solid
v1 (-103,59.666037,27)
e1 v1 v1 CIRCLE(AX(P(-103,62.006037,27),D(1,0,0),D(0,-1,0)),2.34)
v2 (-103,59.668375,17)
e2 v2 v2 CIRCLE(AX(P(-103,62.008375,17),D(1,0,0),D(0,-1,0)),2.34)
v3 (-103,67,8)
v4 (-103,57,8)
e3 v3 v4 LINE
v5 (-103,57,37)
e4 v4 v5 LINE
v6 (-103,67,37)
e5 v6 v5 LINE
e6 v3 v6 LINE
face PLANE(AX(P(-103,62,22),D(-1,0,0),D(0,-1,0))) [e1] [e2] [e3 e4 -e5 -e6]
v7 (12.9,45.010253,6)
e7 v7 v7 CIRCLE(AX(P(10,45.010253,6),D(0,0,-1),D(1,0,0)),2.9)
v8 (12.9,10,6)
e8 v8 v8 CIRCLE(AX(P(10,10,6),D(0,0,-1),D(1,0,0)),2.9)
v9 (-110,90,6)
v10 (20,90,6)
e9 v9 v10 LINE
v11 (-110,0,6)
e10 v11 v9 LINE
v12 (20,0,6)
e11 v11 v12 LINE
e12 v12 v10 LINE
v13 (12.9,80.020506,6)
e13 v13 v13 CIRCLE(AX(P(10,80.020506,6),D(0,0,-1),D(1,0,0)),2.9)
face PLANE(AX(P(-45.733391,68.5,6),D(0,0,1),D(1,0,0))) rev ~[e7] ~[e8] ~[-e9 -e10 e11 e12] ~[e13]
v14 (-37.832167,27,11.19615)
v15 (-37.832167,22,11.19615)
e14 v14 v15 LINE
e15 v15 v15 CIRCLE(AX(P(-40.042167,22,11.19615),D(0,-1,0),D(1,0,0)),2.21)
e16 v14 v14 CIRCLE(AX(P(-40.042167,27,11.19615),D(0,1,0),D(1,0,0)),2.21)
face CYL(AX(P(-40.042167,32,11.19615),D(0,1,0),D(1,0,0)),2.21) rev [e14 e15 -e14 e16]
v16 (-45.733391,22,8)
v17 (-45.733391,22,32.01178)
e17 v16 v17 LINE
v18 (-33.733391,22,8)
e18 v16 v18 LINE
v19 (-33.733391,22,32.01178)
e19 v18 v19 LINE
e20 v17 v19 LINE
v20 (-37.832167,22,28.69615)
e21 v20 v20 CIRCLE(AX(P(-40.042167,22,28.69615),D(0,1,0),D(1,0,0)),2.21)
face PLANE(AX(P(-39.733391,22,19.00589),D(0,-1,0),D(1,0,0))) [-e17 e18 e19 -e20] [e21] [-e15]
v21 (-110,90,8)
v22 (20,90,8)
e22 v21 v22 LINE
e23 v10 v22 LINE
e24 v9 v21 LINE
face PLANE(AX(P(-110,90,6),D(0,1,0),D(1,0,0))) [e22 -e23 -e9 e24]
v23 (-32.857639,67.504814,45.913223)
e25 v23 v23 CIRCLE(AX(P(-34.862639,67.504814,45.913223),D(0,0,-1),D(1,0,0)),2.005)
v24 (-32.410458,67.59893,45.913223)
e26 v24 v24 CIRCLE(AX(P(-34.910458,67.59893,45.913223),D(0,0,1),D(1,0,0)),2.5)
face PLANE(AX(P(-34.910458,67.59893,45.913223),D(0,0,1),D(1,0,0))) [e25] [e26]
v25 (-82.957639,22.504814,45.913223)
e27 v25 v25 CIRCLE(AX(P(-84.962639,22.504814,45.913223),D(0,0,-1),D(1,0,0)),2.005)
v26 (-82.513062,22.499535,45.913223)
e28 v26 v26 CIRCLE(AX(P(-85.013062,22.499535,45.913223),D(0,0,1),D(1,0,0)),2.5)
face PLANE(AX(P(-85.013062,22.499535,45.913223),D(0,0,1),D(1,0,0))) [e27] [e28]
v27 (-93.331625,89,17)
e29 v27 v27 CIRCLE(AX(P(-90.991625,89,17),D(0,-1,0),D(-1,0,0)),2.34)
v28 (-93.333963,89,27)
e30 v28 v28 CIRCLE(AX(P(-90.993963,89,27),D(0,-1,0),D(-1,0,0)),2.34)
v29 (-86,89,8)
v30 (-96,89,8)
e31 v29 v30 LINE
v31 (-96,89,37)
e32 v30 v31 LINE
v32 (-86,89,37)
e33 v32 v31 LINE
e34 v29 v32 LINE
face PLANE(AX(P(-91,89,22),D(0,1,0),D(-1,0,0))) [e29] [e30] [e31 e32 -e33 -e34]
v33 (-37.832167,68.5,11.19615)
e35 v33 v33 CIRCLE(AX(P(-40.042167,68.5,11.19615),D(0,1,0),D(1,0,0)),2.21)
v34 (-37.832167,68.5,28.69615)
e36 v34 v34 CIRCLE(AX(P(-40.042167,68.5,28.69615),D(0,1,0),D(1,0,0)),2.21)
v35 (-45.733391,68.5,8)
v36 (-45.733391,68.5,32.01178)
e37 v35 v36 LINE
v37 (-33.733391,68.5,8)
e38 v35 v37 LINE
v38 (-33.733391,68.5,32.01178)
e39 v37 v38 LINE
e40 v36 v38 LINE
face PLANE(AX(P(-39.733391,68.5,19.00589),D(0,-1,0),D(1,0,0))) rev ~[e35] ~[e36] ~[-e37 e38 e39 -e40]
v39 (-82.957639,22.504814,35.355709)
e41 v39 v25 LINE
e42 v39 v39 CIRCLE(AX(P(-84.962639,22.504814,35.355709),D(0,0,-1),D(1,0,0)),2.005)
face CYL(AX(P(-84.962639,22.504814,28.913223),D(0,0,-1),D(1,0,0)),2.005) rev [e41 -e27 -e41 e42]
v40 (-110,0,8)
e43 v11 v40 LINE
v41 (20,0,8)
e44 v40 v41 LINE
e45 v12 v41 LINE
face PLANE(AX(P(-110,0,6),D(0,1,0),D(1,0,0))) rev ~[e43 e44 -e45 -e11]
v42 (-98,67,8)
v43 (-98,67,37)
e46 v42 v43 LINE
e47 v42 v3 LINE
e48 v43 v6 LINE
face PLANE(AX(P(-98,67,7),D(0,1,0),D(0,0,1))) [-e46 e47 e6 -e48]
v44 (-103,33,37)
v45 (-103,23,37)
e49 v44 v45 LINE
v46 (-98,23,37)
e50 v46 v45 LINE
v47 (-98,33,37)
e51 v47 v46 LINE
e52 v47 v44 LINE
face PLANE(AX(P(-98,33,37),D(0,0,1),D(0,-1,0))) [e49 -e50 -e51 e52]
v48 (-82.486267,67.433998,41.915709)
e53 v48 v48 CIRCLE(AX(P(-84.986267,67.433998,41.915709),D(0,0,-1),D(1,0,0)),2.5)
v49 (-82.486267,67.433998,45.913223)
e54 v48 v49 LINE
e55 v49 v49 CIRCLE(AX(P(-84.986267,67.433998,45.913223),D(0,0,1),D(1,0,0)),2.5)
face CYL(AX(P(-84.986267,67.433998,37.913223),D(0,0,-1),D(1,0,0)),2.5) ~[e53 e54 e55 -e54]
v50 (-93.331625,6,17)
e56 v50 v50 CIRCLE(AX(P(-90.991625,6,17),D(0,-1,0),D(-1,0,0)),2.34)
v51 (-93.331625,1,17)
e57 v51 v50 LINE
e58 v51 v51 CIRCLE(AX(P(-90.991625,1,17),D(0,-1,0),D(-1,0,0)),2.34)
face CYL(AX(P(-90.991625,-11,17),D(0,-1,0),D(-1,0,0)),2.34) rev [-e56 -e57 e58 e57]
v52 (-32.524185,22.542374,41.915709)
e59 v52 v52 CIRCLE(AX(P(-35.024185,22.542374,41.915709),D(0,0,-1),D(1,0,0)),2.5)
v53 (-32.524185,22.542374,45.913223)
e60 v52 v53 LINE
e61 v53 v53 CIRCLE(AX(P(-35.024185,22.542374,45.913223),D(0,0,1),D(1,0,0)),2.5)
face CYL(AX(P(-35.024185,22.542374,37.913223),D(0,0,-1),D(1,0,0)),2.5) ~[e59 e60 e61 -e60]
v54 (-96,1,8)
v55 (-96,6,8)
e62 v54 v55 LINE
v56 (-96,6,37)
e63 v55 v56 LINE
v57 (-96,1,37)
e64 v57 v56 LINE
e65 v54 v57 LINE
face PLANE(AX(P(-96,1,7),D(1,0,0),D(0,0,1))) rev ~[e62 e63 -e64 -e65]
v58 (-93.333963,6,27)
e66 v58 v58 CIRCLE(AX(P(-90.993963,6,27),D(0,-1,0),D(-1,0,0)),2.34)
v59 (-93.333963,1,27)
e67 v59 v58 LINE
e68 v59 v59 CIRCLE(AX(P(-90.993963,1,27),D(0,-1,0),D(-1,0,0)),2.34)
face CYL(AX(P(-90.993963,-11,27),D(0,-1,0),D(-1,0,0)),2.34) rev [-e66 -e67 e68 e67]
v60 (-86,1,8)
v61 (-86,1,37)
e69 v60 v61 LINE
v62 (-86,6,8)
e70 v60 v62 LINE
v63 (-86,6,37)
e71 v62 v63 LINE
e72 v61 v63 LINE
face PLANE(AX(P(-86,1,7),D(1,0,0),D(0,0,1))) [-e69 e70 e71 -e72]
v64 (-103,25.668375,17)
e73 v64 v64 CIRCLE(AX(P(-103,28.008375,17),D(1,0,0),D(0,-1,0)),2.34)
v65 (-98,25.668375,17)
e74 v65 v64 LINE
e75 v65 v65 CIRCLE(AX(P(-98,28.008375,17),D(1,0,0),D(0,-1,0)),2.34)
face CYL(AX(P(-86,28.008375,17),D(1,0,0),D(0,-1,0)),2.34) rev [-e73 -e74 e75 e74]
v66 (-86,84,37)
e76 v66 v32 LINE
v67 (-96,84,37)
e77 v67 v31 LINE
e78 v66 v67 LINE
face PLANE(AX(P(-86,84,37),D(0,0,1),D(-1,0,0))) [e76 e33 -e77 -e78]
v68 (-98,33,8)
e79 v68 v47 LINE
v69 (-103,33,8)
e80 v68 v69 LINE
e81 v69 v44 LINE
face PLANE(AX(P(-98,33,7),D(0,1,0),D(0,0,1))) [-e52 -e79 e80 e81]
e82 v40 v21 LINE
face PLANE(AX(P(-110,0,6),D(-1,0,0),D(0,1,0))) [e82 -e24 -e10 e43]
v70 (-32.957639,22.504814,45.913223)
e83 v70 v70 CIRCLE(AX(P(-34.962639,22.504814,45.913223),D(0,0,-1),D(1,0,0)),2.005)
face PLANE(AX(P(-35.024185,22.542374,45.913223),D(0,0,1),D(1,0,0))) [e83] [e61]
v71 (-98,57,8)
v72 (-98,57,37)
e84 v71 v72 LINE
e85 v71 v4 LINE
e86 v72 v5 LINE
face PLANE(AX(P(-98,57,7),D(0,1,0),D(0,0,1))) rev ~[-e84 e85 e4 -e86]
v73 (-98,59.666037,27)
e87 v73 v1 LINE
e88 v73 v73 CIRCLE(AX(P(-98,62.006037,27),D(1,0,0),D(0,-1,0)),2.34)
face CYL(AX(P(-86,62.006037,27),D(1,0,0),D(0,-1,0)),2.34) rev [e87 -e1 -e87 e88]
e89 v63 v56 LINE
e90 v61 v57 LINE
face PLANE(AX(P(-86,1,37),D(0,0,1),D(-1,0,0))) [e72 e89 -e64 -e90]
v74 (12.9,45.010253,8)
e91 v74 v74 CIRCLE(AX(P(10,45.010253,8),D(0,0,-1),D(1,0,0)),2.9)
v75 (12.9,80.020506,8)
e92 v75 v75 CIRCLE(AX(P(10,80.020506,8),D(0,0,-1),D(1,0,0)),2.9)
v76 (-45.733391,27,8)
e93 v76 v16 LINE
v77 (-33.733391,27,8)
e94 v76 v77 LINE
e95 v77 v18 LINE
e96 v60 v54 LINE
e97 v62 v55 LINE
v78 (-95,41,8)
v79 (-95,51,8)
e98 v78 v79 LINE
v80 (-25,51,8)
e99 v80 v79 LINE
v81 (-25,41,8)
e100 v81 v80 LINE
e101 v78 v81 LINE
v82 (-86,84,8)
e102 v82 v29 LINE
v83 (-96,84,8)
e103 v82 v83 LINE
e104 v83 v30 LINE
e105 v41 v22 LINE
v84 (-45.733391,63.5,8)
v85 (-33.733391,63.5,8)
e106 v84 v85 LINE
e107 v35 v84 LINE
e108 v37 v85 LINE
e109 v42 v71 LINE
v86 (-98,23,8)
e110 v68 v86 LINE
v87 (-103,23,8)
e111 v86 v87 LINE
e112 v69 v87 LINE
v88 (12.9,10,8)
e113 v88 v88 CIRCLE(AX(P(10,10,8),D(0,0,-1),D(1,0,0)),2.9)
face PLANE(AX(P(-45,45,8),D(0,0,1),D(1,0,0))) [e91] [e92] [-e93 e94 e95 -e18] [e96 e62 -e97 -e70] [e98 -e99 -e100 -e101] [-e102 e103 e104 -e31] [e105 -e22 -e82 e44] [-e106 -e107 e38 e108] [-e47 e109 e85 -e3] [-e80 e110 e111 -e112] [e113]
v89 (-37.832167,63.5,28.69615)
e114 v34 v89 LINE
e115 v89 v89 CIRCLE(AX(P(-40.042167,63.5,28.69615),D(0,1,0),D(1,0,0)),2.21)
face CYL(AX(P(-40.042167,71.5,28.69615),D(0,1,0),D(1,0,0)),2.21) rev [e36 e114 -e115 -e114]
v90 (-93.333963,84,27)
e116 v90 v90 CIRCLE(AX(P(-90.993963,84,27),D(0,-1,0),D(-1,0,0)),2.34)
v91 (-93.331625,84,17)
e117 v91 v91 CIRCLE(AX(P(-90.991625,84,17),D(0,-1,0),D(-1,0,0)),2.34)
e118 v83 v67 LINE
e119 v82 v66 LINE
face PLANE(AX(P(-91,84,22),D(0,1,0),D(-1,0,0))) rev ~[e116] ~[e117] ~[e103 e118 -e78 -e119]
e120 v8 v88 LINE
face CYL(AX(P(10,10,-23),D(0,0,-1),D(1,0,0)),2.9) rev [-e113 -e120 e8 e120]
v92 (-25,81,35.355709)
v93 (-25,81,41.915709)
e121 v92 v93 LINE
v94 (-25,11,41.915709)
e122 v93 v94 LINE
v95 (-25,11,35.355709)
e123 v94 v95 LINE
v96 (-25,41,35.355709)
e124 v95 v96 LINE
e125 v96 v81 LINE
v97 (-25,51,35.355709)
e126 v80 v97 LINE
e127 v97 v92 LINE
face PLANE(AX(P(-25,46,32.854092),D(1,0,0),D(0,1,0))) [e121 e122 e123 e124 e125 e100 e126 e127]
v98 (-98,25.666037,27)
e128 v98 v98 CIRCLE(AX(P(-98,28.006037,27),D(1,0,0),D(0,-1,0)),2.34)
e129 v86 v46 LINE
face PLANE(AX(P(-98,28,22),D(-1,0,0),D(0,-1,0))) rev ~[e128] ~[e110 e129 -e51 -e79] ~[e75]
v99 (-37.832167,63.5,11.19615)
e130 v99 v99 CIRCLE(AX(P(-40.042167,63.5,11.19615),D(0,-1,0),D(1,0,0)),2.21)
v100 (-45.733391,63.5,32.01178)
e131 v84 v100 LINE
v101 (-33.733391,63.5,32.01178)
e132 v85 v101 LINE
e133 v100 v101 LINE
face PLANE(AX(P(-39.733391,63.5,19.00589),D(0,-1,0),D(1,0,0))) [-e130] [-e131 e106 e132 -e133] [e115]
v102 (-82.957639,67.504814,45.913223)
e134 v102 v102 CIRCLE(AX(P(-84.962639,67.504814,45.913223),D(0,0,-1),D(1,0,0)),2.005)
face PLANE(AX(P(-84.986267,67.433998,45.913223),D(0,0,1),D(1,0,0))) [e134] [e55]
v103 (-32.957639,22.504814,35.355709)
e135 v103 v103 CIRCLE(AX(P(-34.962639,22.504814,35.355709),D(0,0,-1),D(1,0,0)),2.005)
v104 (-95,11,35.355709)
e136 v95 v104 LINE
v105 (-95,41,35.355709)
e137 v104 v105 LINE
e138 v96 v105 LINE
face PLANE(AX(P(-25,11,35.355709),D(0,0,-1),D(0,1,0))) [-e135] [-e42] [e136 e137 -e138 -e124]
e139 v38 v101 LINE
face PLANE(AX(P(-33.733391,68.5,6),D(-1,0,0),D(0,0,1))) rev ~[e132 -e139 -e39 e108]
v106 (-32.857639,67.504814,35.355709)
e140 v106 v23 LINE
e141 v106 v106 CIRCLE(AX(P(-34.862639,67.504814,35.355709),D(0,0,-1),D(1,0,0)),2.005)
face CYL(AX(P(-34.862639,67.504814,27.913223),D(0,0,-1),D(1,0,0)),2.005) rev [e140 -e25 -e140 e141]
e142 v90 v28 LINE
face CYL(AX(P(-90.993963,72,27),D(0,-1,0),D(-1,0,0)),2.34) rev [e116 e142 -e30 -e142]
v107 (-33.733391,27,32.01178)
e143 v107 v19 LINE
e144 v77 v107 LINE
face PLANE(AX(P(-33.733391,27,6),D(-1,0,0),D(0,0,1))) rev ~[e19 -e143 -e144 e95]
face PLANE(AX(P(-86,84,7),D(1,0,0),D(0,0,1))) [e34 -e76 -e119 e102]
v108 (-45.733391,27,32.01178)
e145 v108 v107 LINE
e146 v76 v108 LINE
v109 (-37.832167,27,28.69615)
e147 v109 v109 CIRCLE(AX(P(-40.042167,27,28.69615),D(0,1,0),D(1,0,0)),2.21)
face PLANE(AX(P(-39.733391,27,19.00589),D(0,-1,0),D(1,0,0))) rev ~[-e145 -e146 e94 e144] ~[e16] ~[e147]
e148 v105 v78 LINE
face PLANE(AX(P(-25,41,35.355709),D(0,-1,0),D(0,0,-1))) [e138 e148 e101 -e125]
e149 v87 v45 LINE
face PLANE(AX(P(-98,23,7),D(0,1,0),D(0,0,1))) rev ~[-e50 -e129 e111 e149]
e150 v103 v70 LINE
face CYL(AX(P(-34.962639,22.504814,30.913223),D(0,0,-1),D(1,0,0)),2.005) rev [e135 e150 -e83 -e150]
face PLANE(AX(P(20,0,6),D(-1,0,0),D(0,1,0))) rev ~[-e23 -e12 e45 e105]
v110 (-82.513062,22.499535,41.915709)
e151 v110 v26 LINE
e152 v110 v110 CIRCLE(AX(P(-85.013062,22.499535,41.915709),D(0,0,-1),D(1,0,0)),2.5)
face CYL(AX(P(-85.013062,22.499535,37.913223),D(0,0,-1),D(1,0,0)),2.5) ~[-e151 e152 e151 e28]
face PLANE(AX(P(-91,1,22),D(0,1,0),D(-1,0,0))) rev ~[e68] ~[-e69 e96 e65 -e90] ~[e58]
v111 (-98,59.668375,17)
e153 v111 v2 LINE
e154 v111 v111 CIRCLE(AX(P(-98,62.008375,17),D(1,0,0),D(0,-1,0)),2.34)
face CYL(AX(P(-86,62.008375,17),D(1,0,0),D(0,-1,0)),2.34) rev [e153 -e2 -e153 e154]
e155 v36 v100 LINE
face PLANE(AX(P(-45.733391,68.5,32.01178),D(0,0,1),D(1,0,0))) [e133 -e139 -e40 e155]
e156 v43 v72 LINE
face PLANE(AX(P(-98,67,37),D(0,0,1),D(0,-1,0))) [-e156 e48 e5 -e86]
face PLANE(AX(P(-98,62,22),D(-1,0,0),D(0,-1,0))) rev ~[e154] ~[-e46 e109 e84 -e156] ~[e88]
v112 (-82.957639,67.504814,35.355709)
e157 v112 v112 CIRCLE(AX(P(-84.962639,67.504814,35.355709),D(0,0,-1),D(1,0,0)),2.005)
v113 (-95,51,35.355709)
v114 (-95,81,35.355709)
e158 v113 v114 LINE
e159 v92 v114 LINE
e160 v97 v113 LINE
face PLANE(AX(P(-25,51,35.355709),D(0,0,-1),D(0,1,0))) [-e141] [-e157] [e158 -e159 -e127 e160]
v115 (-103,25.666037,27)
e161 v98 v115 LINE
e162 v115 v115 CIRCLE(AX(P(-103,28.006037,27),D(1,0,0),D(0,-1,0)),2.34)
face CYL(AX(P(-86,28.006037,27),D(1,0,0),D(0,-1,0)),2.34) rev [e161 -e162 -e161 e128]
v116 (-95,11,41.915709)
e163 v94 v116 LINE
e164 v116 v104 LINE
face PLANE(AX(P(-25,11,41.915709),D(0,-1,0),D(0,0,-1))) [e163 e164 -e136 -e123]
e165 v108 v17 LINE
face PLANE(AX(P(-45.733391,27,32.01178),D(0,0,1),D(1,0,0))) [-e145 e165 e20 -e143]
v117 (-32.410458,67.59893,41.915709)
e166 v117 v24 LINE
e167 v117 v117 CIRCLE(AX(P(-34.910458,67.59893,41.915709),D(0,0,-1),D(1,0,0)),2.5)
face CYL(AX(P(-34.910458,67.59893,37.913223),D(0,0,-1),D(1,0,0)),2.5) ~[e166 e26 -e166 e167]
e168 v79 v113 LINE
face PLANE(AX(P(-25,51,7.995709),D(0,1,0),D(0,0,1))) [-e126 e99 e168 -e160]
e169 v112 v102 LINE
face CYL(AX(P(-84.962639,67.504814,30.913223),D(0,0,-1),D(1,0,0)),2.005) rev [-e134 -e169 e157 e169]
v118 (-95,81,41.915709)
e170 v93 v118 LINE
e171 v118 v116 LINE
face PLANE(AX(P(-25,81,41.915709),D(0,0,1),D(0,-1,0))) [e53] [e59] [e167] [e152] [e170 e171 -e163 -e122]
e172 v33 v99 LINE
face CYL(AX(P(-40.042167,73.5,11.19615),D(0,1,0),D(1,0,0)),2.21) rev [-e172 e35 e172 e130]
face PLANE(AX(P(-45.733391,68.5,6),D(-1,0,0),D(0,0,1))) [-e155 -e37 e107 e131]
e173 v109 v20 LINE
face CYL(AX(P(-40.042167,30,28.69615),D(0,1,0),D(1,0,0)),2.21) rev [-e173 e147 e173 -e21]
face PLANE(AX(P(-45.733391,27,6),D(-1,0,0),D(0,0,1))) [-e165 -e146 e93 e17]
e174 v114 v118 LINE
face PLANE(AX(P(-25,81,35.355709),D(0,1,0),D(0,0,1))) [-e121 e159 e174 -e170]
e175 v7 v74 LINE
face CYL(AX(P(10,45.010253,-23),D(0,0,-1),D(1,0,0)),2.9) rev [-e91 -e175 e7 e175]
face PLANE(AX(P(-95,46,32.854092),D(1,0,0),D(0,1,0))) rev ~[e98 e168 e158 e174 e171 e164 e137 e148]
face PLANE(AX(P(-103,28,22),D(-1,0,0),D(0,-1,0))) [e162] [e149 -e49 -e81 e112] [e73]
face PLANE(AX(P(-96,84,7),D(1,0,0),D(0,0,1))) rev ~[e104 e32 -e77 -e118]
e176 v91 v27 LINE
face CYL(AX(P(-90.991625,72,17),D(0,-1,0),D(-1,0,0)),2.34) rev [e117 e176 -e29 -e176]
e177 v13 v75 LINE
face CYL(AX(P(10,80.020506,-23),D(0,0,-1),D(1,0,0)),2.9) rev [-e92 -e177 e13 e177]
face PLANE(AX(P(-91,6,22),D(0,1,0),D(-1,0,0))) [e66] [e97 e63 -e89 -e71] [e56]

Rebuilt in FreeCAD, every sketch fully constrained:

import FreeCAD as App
import Part
import Sketcher

doc = App.newDocument("Part")
body = doc.addObject("PartDesign::Body", "Body")

# Sketch on XZ plane
sketch1 = doc.addObject("Sketcher::SketchObject", "Sketch")
body.addObject(sketch1)
sketch1.AttachmentSupport = (doc.XZ_Plane, [""])
sketch1.MapMode = "FlatFace"
sketch1.addGeometry(Part.Circle(App.Vector(-30.2, 20, 0), App.Vector(0, 0, 1), 2.2), False)
sketch1.addConstraint([
    Sketcher.Constraint("Diameter", 0, 4.42),
    Sketcher.Constraint("DistanceY", -1, 1, 0, 3, 20.01615),
    Sketcher.Constraint("DistanceX", 0, 3, -1, 1, 30.242167),
])
pad1 = doc.addObject("PartDesign::Pad", "Pad")
body.addObject(pad1)
pad1.Profile = sketch1
pad1.Length = 10
body2 = doc.addObject("PartDesign::Body", "Body001")
doc.recompute()

body.Placement = App.Placement(App.Vector(-9.8, 5, -14.82), App.Rotation(App.Vector(0, 0, 1), 0))
boolean = doc.addObject("PartDesign::Boolean", "Boolean")
body2.addObject(boolean)
boolean.Type = "Fuse"
boolean.addObjects([body])
body3 = doc.addObject("PartDesign::Body", "Body002")

# Sketch on XZ plane
sketch2 = doc.addObject("Sketcher::SketchObject", "Sketch001")
body3.addObject(sketch2)
sketch2.AttachmentSupport = (doc.getObject("XZ_Plane002"), [""])
sketch2.MapMode = "FlatFace"
sketch2.addGeometry(Part.Circle(App.Vector(-30.2, 20, 0), App.Vector(0, 0, 1), 2.2), False)
sketch2.addConstraint([
    Sketcher.Constraint("Diameter", 0, 4.42),
    Sketcher.Constraint("DistanceY", -1, 1, 0, 3, 20.01615),
    Sketcher.Constraint("DistanceX", 0, 3, -1, 1, 30.242167),
])
pad2 = doc.addObject("PartDesign::Pad", "Pad001")
body3.addObject(pad2)
pad2.Profile = sketch2
pad2.Length = 10
body4 = doc.addObject("PartDesign::Body", "Body003")
doc.recompute()

body3.Placement = App.Placement(App.Vector(-9.8, 3, 2.68), App.Rotation(App.Vector(0, 0, 1), 0))
boolean2 = doc.addObject("PartDesign::Boolean", "Boolean001")
body4.addObject(boolean2)
boolean2.Type = "Fuse"
boolean2.addObjects([body3])
body5 = doc.addObject("PartDesign::Body", "Body004")

# Sketch on XZ plane
sketch3 = doc.addObject("Sketcher::SketchObject", "Sketch002")
body5.addObject(sketch3)
sketch3.AttachmentSupport = (doc.getObject("XZ_Plane004"), [""])
sketch3.MapMode = "FlatFace"
sketch3.addGeometry([
    Part.LineSegment(App.Vector(-46, 26, 0), App.Vector(-46, 0, 0)),
    Part.LineSegment(App.Vector(-46, 0, 0), App.Vector(-34, 0, 0)),
    Part.LineSegment(App.Vector(-34, 0, 0), App.Vector(-34, 26, 0)),
    Part.LineSegment(App.Vector(-34, 26, 0), App.Vector(-46, 26, 0)),
], False)
sketch3.addConstraint([
    Sketcher.Constraint("Coincident", 0, 2, 1, 1),
    Sketcher.Constraint("Coincident", 1, 2, 2, 1),
    Sketcher.Constraint("Coincident", 2, 2, 3, 1),
    Sketcher.Constraint("Coincident", 3, 2, 0, 1),
    Sketcher.Constraint("Vertical", 0),
    Sketcher.Constraint("Horizontal", 1),
    Sketcher.Constraint("Vertical", 2),
    Sketcher.Constraint("Horizontal", 3),
    Sketcher.Constraint("PointOnObject", 0, 2, -1),
    Sketcher.Constraint("DistanceX", 1, 1, 1, 2, 12.0),
    Sketcher.Constraint("DistanceY", 0, 2, 0, 1, 26.01178),
    Sketcher.Constraint("DistanceX", 0, 2, -1, 1, 45.733391),
])
pad3 = doc.addObject("PartDesign::Pad", "Pad002")
body5.addObject(pad3)
pad3.Profile = sketch3
pad3.Length = 5
doc.recompute()

boolean3 = doc.addObject("PartDesign::Boolean", "Boolean002")
body5.addObject(boolean3)
boolean3.Type = "Cut"
boolean3.addObjects([body4])
doc.recompute()

boolean4 = doc.addObject("PartDesign::Boolean", "Boolean003")
body5.addObject(boolean4)
boolean4.Type = "Cut"
boolean4.addObjects([body2])
body6 = doc.addObject("PartDesign::Body", "Body005")
doc.recompute()

body5.Placement = App.Placement(App.Vector(0, 68.5, 6), App.Rotation(App.Vector(0, 0, 1), 0))
boolean5 = doc.addObject("PartDesign::Boolean", "Boolean004")
body6.addObject(boolean5)
boolean5.Type = "Fuse"
boolean5.addObjects([body5])
body7 = doc.addObject("PartDesign::Body", "Body006")

# Sketch on XZ plane
sketch4 = doc.addObject("Sketcher::SketchObject", "Sketch003")
body7.addObject(sketch4)
sketch4.AttachmentSupport = (doc.getObject("XZ_Plane006"), [""])
sketch4.MapMode = "FlatFace"
sketch4.addGeometry(Part.Circle(App.Vector(-30.2, 20, 0), App.Vector(0, 0, 1), 2.2), False)
sketch4.addConstraint([
    Sketcher.Constraint("Diameter", 0, 4.42),
    Sketcher.Constraint("DistanceY", -1, 1, 0, 3, 20.01615),
    Sketcher.Constraint("DistanceX", 0, 3, -1, 1, 30.242167),
])
pad4 = doc.addObject("PartDesign::Pad", "Pad003")
body7.addObject(pad4)
pad4.Profile = sketch4
pad4.Length = 10
body8 = doc.addObject("PartDesign::Body", "Body007")
doc.recompute()

body7.Placement = App.Placement(App.Vector(-9.8, 5, -14.82), App.Rotation(App.Vector(0, 0, 1), 0))
boolean6 = doc.addObject("PartDesign::Boolean", "Boolean005")
body8.addObject(boolean6)
boolean6.Type = "Fuse"
boolean6.addObjects([body7])
body9 = doc.addObject("PartDesign::Body", "Body008")

# Sketch on XZ plane
sketch5 = doc.addObject("Sketcher::SketchObject", "Sketch004")
body9.addObject(sketch5)
sketch5.AttachmentSupport = (doc.getObject("XZ_Plane008"), [""])
sketch5.MapMode = "FlatFace"
sketch5.addGeometry(Part.Circle(App.Vector(-30.2, 20, 0), App.Vector(0, 0, 1), 2.2), False)
sketch5.addConstraint([
    Sketcher.Constraint("Diameter", 0, 4.42),
    Sketcher.Constraint("DistanceY", -1, 1, 0, 3, 20.01615),
    Sketcher.Constraint("DistanceX", 0, 3, -1, 1, 30.242167),
])
pad5 = doc.addObject("PartDesign::Pad", "Pad004")
body9.addObject(pad5)
pad5.Profile = sketch5
pad5.Length = 10
body10 = doc.addObject("PartDesign::Body", "Body009")
doc.recompute()

body9.Placement = App.Placement(App.Vector(-9.8, 3, 2.68), App.Rotation(App.Vector(0, 0, 1), 0))
boolean7 = doc.addObject("PartDesign::Boolean", "Boolean006")
body10.addObject(boolean7)
boolean7.Type = "Fuse"
boolean7.addObjects([body9])
body11 = doc.addObject("PartDesign::Body", "Body010")

# Sketch on XZ plane
sketch6 = doc.addObject("Sketcher::SketchObject", "Sketch005")
body11.addObject(sketch6)
sketch6.AttachmentSupport = (doc.getObject("XZ_Plane010"), [""])
sketch6.MapMode = "FlatFace"
sketch6.addGeometry([
    Part.LineSegment(App.Vector(-46, 26, 0), App.Vector(-46, 0, 0)),
    Part.LineSegment(App.Vector(-46, 0, 0), App.Vector(-34, 0, 0)),
    Part.LineSegment(App.Vector(-34, 0, 0), App.Vector(-34, 26, 0)),
    Part.LineSegment(App.Vector(-34, 26, 0), App.Vector(-46, 26, 0)),
], False)
sketch6.addConstraint([
    Sketcher.Constraint("Coincident", 0, 2, 1, 1),
    Sketcher.Constraint("Coincident", 1, 2, 2, 1),
    Sketcher.Constraint("Coincident", 2, 2, 3, 1),
    Sketcher.Constraint("Coincident", 3, 2, 0, 1),
    Sketcher.Constraint("Vertical", 0),
    Sketcher.Constraint("Horizontal", 1),
    Sketcher.Constraint("Vertical", 2),
    Sketcher.Constraint("Horizontal", 3),
    Sketcher.Constraint("PointOnObject", 0, 2, -1),
    Sketcher.Constraint("DistanceX", 1, 1, 1, 2, 12.0),
    Sketcher.Constraint("DistanceY", 0, 2, 0, 1, 26.01178),
    Sketcher.Constraint("DistanceX", 0, 2, -1, 1, 45.733391),
])
pad6 = doc.addObject("PartDesign::Pad", "Pad005")
body11.addObject(pad6)
pad6.Profile = sketch6
pad6.Length = 5
doc.recompute()

boolean8 = doc.addObject("PartDesign::Boolean", "Boolean007")
body11.addObject(boolean8)
boolean8.Type = "Cut"
boolean8.addObjects([body10])
doc.recompute()

boolean9 = doc.addObject("PartDesign::Boolean", "Boolean008")
body11.addObject(boolean9)
boolean9.Type = "Cut"
boolean9.addObjects([body8])
body12 = doc.addObject("PartDesign::Body", "Body011")
doc.recompute()

body11.Placement = App.Placement(App.Vector(0, 27, 6), App.Rotation(App.Vector(0, 0, 1), 0))
boolean10 = doc.addObject("PartDesign::Boolean", "Boolean009")
body12.addObject(boolean10)
boolean10.Type = "Fuse"
boolean10.addObjects([body11])
body13 = doc.addObject("PartDesign::Body", "Body012")
body13.AllowCompound = True

# Sketch on YZ plane
sketch7 = doc.addObject("Sketcher::SketchObject", "Sketch006")
body13.addObject(sketch7)
sketch7.AttachmentSupport = (doc.getObject("YZ_Plane012"), [""])
sketch7.MapMode = "FlatFace"
sketch7.AttachmentOffset = App.Placement(App.Vector(0, 0, -101), App.Rotation())
sketch7.addGeometry([
    Part.Circle(App.Vector(28, 30, 0), App.Vector(0, 0, 1), 2.3),
    Part.Circle(App.Vector(28, 20, 0), App.Vector(0, 0, 1), 2.3),
], False)
sketch7.addConstraint([
    Sketcher.Constraint("Equal", 0, 1),
    Sketcher.Constraint("Diameter", 0, 4.68),
    Sketcher.Constraint("DistanceY", -1, 1, 0, 3, 30.0),
    Sketcher.Constraint("DistanceY", -1, 1, 1, 3, 20.0),
    Sketcher.Constraint("DistanceX", 0, 3, 1, 3, 0.002338),
    Sketcher.Constraint("DistanceX", -1, 1, 0, 3, 28.006037),
])
pad7 = doc.addObject("PartDesign::Pad", "Pad006")
body13.addObject(pad7)
pad7.Profile = sketch7
pad7.Length = 20
pad7.Reversed = True
body14 = doc.addObject("PartDesign::Body", "Body013")
body14.AllowCompound = True
doc.recompute()

body13.Placement = App.Placement(App.Vector(17, 0, 0), App.Rotation(App.Vector(0, 0, 1), 0))
boolean11 = doc.addObject("PartDesign::Boolean", "Boolean010")
body14.addObject(boolean11)
boolean11.Type = "Fuse"
boolean11.addObjects([body13])
body15 = doc.addObject("PartDesign::Body", "Body014")

# Sketch on XZ plane
sketch8 = doc.addObject("Sketcher::SketchObject", "Sketch007")
body15.addObject(sketch8)
sketch8.AttachmentSupport = (doc.getObject("XZ_Plane014"), [""])
sketch8.MapMode = "FlatFace"
sketch8.addGeometry([
    Part.LineSegment(App.Vector(-140, 40, 0), App.Vector(-140, 10, 0)),
    Part.LineSegment(App.Vector(-140, 10, 0), App.Vector(-130, 10, 0)),
    Part.LineSegment(App.Vector(-130, 10, 0), App.Vector(-130, 40, 0)),
    Part.LineSegment(App.Vector(-130, 40, 0), App.Vector(-140, 40, 0)),
], False)
sketch8.addConstraint([
    Sketcher.Constraint("Coincident", 0, 2, 1, 1),
    Sketcher.Constraint("Coincident", 1, 2, 2, 1),
    Sketcher.Constraint("Coincident", 2, 2, 3, 1),
    Sketcher.Constraint("Coincident", 3, 2, 0, 1),
    Sketcher.Constraint("Vertical", 0),
    Sketcher.Constraint("Horizontal", 1),
    Sketcher.Constraint("Vertical", 2),
    Sketcher.Constraint("Horizontal", 3),
    Sketcher.Constraint("DistanceX", 1, 1, 1, 2, 10.0),
    Sketcher.Constraint("DistanceY", 0, 2, 0, 1, 30.0),
    Sketcher.Constraint("DistanceX", 0, 2, -1, 1, 140.0),
    Sketcher.Constraint("DistanceY", -1, 1, 0, 2, 10.0),
])
pad8 = doc.addObject("PartDesign::Pad", "Pad007")
body15.addObject(pad8)
pad8.Profile = sketch8
pad8.Length = 5
body16 = doc.addObject("PartDesign::Body", "Body015")
doc.recompute()

body15.Placement = App.Placement(App.Vector(-96, -107, 0), App.Rotation(App.Vector(0, 0, -1), 90))
boolean12 = doc.addObject("PartDesign::Boolean", "Boolean011")
body16.addObject(boolean12)
boolean12.Type = "Fuse"
boolean12.addObjects([body15])
doc.recompute()

boolean13 = doc.addObject("PartDesign::Boolean", "Boolean012")
body16.addObject(boolean13)
boolean13.Type = "Cut"
boolean13.addObjects([body14])
body17 = doc.addObject("PartDesign::Body", "Body016")
doc.recompute()

body16.Placement = App.Placement(App.Vector(-119, -12, -3), App.Rotation(App.Vector(0, 0, -1), 90))
boolean14 = doc.addObject("PartDesign::Boolean", "Boolean013")
body17.addObject(boolean14)
boolean14.Type = "Fuse"
boolean14.addObjects([body16])
body18 = doc.addObject("PartDesign::Body", "Body017")
body18.AllowCompound = True

# Sketch on YZ plane
sketch9 = doc.addObject("Sketcher::SketchObject", "Sketch008")
body18.addObject(sketch9)
sketch9.AttachmentSupport = (doc.getObject("YZ_Plane017"), [""])
sketch9.MapMode = "FlatFace"
sketch9.AttachmentOffset = App.Placement(App.Vector(0, 0, -101), App.Rotation())
sketch9.addGeometry([
    Part.Circle(App.Vector(28, 30, 0), App.Vector(0, 0, 1), 2.3),
    Part.Circle(App.Vector(28, 20, 0), App.Vector(0, 0, 1), 2.3),
], False)
sketch9.addConstraint([
    Sketcher.Constraint("Equal", 0, 1),
    Sketcher.Constraint("Diameter", 0, 4.68),
    Sketcher.Constraint("DistanceY", -1, 1, 0, 3, 30.0),
    Sketcher.Constraint("DistanceY", -1, 1, 1, 3, 20.0),
    Sketcher.Constraint("DistanceX", 0, 3, 1, 3, 0.002338),
    Sketcher.Constraint("DistanceX", -1, 1, 0, 3, 28.006037),
])
pad9 = doc.addObject("PartDesign::Pad", "Pad008")
body18.addObject(pad9)
pad9.Profile = sketch9
pad9.Length = 20
pad9.Reversed = True
body19 = doc.addObject("PartDesign::Body", "Body018")
body19.AllowCompound = True
doc.recompute()

body18.Placement = App.Placement(App.Vector(17, 0, 0), App.Rotation(App.Vector(0, 0, 1), 0))
boolean15 = doc.addObject("PartDesign::Boolean", "Boolean014")
body19.addObject(boolean15)
boolean15.Type = "Fuse"
boolean15.addObjects([body18])
body20 = doc.addObject("PartDesign::Body", "Body019")

# Sketch on XZ plane
sketch10 = doc.addObject("Sketcher::SketchObject", "Sketch009")
body20.addObject(sketch10)
sketch10.AttachmentSupport = (doc.getObject("XZ_Plane019"), [""])
sketch10.MapMode = "FlatFace"
sketch10.addGeometry([
    Part.LineSegment(App.Vector(-140, 40, 0), App.Vector(-140, 10, 0)),
    Part.LineSegment(App.Vector(-140, 10, 0), App.Vector(-130, 10, 0)),
    Part.LineSegment(App.Vector(-130, 10, 0), App.Vector(-130, 40, 0)),
    Part.LineSegment(App.Vector(-130, 40, 0), App.Vector(-140, 40, 0)),
], False)
sketch10.addConstraint([
    Sketcher.Constraint("Coincident", 0, 2, 1, 1),
    Sketcher.Constraint("Coincident", 1, 2, 2, 1),
    Sketcher.Constraint("Coincident", 2, 2, 3, 1),
    Sketcher.Constraint("Coincident", 3, 2, 0, 1),
    Sketcher.Constraint("Vertical", 0),
    Sketcher.Constraint("Horizontal", 1),
    Sketcher.Constraint("Vertical", 2),
    Sketcher.Constraint("Horizontal", 3),
    Sketcher.Constraint("DistanceX", 1, 1, 1, 2, 10.0),
    Sketcher.Constraint("DistanceY", 0, 2, 0, 1, 30.0),
    Sketcher.Constraint("DistanceX", 0, 2, -1, 1, 140.0),
    Sketcher.Constraint("DistanceY", -1, 1, 0, 2, 10.0),
])
pad10 = doc.addObject("PartDesign::Pad", "Pad009")
body20.addObject(pad10)
pad10.Profile = sketch10
pad10.Length = 5
body21 = doc.addObject("PartDesign::Body", "Body020")
doc.recompute()

body20.Placement = App.Placement(App.Vector(-96, -107, 0), App.Rotation(App.Vector(0, 0, -1), 90))
boolean16 = doc.addObject("PartDesign::Boolean", "Boolean015")
body21.addObject(boolean16)
boolean16.Type = "Fuse"
boolean16.addObjects([body20])
doc.recompute()

boolean17 = doc.addObject("PartDesign::Boolean", "Boolean016")
body21.addObject(boolean17)
boolean17.Type = "Cut"
boolean17.addObjects([body19])
body22 = doc.addObject("PartDesign::Body", "Body021")
doc.recompute()

body21.Placement = App.Placement(App.Vector(-2, 34, -3), App.Rotation(App.Vector(0, 0, 1), 0))
boolean18 = doc.addObject("PartDesign::Boolean", "Boolean017")
body22.addObject(boolean18)
boolean18.Type = "Fuse"
boolean18.addObjects([body21])
body23 = doc.addObject("PartDesign::Body", "Body022")
body23.AllowCompound = True

# Sketch on YZ plane
sketch11 = doc.addObject("Sketcher::SketchObject", "Sketch010")
body23.addObject(sketch11)
sketch11.AttachmentSupport = (doc.getObject("YZ_Plane022"), [""])
sketch11.MapMode = "FlatFace"
sketch11.AttachmentOffset = App.Placement(App.Vector(0, 0, -101), App.Rotation())
sketch11.addGeometry([
    Part.Circle(App.Vector(28, 30, 0), App.Vector(0, 0, 1), 2.3),
    Part.Circle(App.Vector(28, 20, 0), App.Vector(0, 0, 1), 2.3),
], False)
sketch11.addConstraint([
    Sketcher.Constraint("Equal", 0, 1),
    Sketcher.Constraint("Diameter", 0, 4.68),
    Sketcher.Constraint("DistanceY", -1, 1, 0, 3, 30.0),
    Sketcher.Constraint("DistanceY", -1, 1, 1, 3, 20.0),
    Sketcher.Constraint("DistanceX", 0, 3, 1, 3, 0.002338),
    Sketcher.Constraint("DistanceX", -1, 1, 0, 3, 28.006037),
])
pad11 = doc.addObject("PartDesign::Pad", "Pad010")
body23.addObject(pad11)
pad11.Profile = sketch11
pad11.Length = 20
pad11.Reversed = True
body24 = doc.addObject("PartDesign::Body", "Body023")
body24.AllowCompound = True
doc.recompute()

body23.Placement = App.Placement(App.Vector(17, 0, 0), App.Rotation(App.Vector(0, 0, 1), 0))
boolean19 = doc.addObject("PartDesign::Boolean", "Boolean018")
body24.addObject(boolean19)
boolean19.Type = "Fuse"
boolean19.addObjects([body23])
body25 = doc.addObject("PartDesign::Body", "Body024")

# Sketch on XZ plane
sketch12 = doc.addObject("Sketcher::SketchObject", "Sketch011")
body25.addObject(sketch12)
sketch12.AttachmentSupport = (doc.getObject("XZ_Plane024"), [""])
sketch12.MapMode = "FlatFace"
sketch12.addGeometry([
    Part.LineSegment(App.Vector(-140, 40, 0), App.Vector(-140, 10, 0)),
    Part.LineSegment(App.Vector(-140, 10, 0), App.Vector(-130, 10, 0)),
    Part.LineSegment(App.Vector(-130, 10, 0), App.Vector(-130, 40, 0)),
    Part.LineSegment(App.Vector(-130, 40, 0), App.Vector(-140, 40, 0)),
], False)
sketch12.addConstraint([
    Sketcher.Constraint("Coincident", 0, 2, 1, 1),
    Sketcher.Constraint("Coincident", 1, 2, 2, 1),
    Sketcher.Constraint("Coincident", 2, 2, 3, 1),
    Sketcher.Constraint("Coincident", 3, 2, 0, 1),
    Sketcher.Constraint("Vertical", 0),
    Sketcher.Constraint("Horizontal", 1),
    Sketcher.Constraint("Vertical", 2),
    Sketcher.Constraint("Horizontal", 3),
    Sketcher.Constraint("DistanceX", 1, 1, 1, 2, 10.0),
    Sketcher.Constraint("DistanceY", 0, 2, 0, 1, 30.0),
    Sketcher.Constraint("DistanceX", 0, 2, -1, 1, 140.0),
    Sketcher.Constraint("DistanceY", -1, 1, 0, 2, 10.0),
])
pad12 = doc.addObject("PartDesign::Pad", "Pad011")
body25.addObject(pad12)
pad12.Profile = sketch12
pad12.Length = 5
body26 = doc.addObject("PartDesign::Body", "Body025")
doc.recompute()

body25.Placement = App.Placement(App.Vector(-96, -107, 0), App.Rotation(App.Vector(0, 0, -1), 90))
boolean20 = doc.addObject("PartDesign::Boolean", "Boolean019")
body26.addObject(boolean20)
boolean20.Type = "Fuse"
boolean20.addObjects([body25])
doc.recompute()

boolean21 = doc.addObject("PartDesign::Boolean", "Boolean020")
body26.addObject(boolean21)
boolean21.Type = "Cut"
boolean21.addObjects([body24])
body27 = doc.addObject("PartDesign::Body", "Body026")
doc.recompute()

body26.Placement = App.Placement(App.Vector(-2, 0, -3), App.Rotation(App.Vector(0, 0, 1), 0))
boolean22 = doc.addObject("PartDesign::Boolean", "Boolean021")
body27.addObject(boolean22)
boolean22.Type = "Fuse"
boolean22.addObjects([body26])
body28 = doc.addObject("PartDesign::Body", "Body027")
body28.AllowCompound = True

# Sketch on YZ plane
sketch13 = doc.addObject("Sketcher::SketchObject", "Sketch012")
body28.addObject(sketch13)
sketch13.AttachmentSupport = (doc.getObject("YZ_Plane027"), [""])
sketch13.MapMode = "FlatFace"
sketch13.AttachmentOffset = App.Placement(App.Vector(0, 0, -101), App.Rotation())
sketch13.addGeometry([
    Part.Circle(App.Vector(28, 30, 0), App.Vector(0, 0, 1), 2.3),
    Part.Circle(App.Vector(28, 20, 0), App.Vector(0, 0, 1), 2.3),
], False)
sketch13.addConstraint([
    Sketcher.Constraint("Equal", 0, 1),
    Sketcher.Constraint("Diameter", 0, 4.68),
    Sketcher.Constraint("DistanceY", -1, 1, 0, 3, 30.0),
    Sketcher.Constraint("DistanceY", -1, 1, 1, 3, 20.0),
    Sketcher.Constraint("DistanceX", 0, 3, 1, 3, 0.002338),
    Sketcher.Constraint("DistanceX", -1, 1, 0, 3, 28.006037),
])
pad13 = doc.addObject("PartDesign::Pad", "Pad012")
body28.addObject(pad13)
pad13.Profile = sketch13
pad13.Length = 20
pad13.Reversed = True
body29 = doc.addObject("PartDesign::Body", "Body028")
body29.AllowCompound = True
doc.recompute()

body28.Placement = App.Placement(App.Vector(17, 0, 0), App.Rotation(App.Vector(0, 0, 1), 0))
boolean23 = doc.addObject("PartDesign::Boolean", "Boolean022")
body29.addObject(boolean23)
boolean23.Type = "Fuse"
boolean23.addObjects([body28])
body30 = doc.addObject("PartDesign::Body", "Body029")

# Sketch on XZ plane
sketch14 = doc.addObject("Sketcher::SketchObject", "Sketch013")
body30.addObject(sketch14)
sketch14.AttachmentSupport = (doc.getObject("XZ_Plane029"), [""])
sketch14.MapMode = "FlatFace"
sketch14.addGeometry([
    Part.LineSegment(App.Vector(-140, 40, 0), App.Vector(-140, 10, 0)),
    Part.LineSegment(App.Vector(-140, 10, 0), App.Vector(-130, 10, 0)),
    Part.LineSegment(App.Vector(-130, 10, 0), App.Vector(-130, 40, 0)),
    Part.LineSegment(App.Vector(-130, 40, 0), App.Vector(-140, 40, 0)),
], False)
sketch14.addConstraint([
    Sketcher.Constraint("Coincident", 0, 2, 1, 1),
    Sketcher.Constraint("Coincident", 1, 2, 2, 1),
    Sketcher.Constraint("Coincident", 2, 2, 3, 1),
    Sketcher.Constraint("Coincident", 3, 2, 0, 1),
    Sketcher.Constraint("Vertical", 0),
    Sketcher.Constraint("Horizontal", 1),
    Sketcher.Constraint("Vertical", 2),
    Sketcher.Constraint("Horizontal", 3),
    Sketcher.Constraint("DistanceX", 1, 1, 1, 2, 10.0),
    Sketcher.Constraint("DistanceY", 0, 2, 0, 1, 30.0),
    Sketcher.Constraint("DistanceX", 0, 2, -1, 1, 140.0),
    Sketcher.Constraint("DistanceY", -1, 1, 0, 2, 10.0),
])
pad14 = doc.addObject("PartDesign::Pad", "Pad013")
body30.addObject(pad14)
pad14.Profile = sketch14
pad14.Length = 5
body31 = doc.addObject("PartDesign::Body", "Body030")
doc.recompute()

body30.Placement = App.Placement(App.Vector(-96, -107, 0), App.Rotation(App.Vector(0, 0, -1), 90))
boolean24 = doc.addObject("PartDesign::Boolean", "Boolean023")
body31.addObject(boolean24)
boolean24.Type = "Fuse"
boolean24.addObjects([body30])
doc.recompute()

boolean25 = doc.addObject("PartDesign::Boolean", "Boolean024")
body31.addObject(boolean25)
boolean25.Type = "Cut"
boolean25.addObjects([body29])
body32 = doc.addObject("PartDesign::Body", "Body031")
doc.recompute()

body31.Placement = App.Placement(App.Vector(-119, -95, -3), App.Rotation(App.Vector(0, 0, -1), 90))
boolean26 = doc.addObject("PartDesign::Boolean", "Boolean025")
body32.addObject(boolean26)
boolean26.Type = "Fuse"
boolean26.addObjects([body31])
body33 = doc.addObject("PartDesign::Body", "Body032")

# Sketch on XY plane
sketch15 = doc.addObject("Sketcher::SketchObject", "Sketch014")
body33.addObject(sketch15)
sketch15.AttachmentSupport = (doc.getObject("XY_Plane032"), [""])
sketch15.MapMode = "FlatFace"
sketch15.AttachmentOffset = App.Placement(App.Vector(0, 0, 45.913223), App.Rotation())
sketch15.addGeometry(Part.Circle(App.Vector(-85, 67.5, 0), App.Vector(0, 0, 1), 2), False)
sketch15.addConstraint([
    Sketcher.Constraint("Diameter", 0, 4.01),
    Sketcher.Constraint("DistanceX", 0, 3, -1, 1, 84.962639),
    Sketcher.Constraint("DistanceY", -1, 1, 0, 3, 67.504814),
])
pad15 = doc.addObject("PartDesign::Pad", "Pad014")
body33.addObject(pad15)
pad15.Profile = sketch15
pad15.Length = 20
body34 = doc.addObject("PartDesign::Body", "Body033")
doc.recompute()

body33.Placement = App.Placement(App.Vector(0, -45, -17), App.Rotation(App.Vector(0, 0, 1), 0))
boolean27 = doc.addObject("PartDesign::Boolean", "Boolean026")
body34.addObject(boolean27)
boolean27.Type = "Fuse"
boolean27.addObjects([body33])
body35 = doc.addObject("PartDesign::Body", "Body034")

# Sketch on XY plane
sketch16 = doc.addObject("Sketcher::SketchObject", "Sketch015")
body35.addObject(sketch16)
sketch16.AttachmentSupport = (doc.getObject("XY_Plane034"), [""])
sketch16.MapMode = "FlatFace"
sketch16.AttachmentOffset = App.Placement(App.Vector(0, 0, 45.913223), App.Rotation())
sketch16.addGeometry(Part.Circle(App.Vector(-85, 67.5, 0), App.Vector(0, 0, 1), 2), False)
sketch16.addConstraint([
    Sketcher.Constraint("Diameter", 0, 4.01),
    Sketcher.Constraint("DistanceX", 0, 3, -1, 1, 84.962639),
    Sketcher.Constraint("DistanceY", -1, 1, 0, 3, 67.504814),
])
pad16 = doc.addObject("PartDesign::Pad", "Pad015")
body35.addObject(pad16)
pad16.Profile = sketch16
pad16.Length = 20
body36 = doc.addObject("PartDesign::Body", "Body035")
doc.recompute()

body35.Placement = App.Placement(App.Vector(50, -45, -15), App.Rotation(App.Vector(0, 0, 1), 0))
boolean28 = doc.addObject("PartDesign::Boolean", "Boolean027")
body36.addObject(boolean28)
boolean28.Type = "Fuse"
boolean28.addObjects([body35])
body37 = doc.addObject("PartDesign::Body", "Body036")

# Sketch on XY plane
sketch17 = doc.addObject("Sketcher::SketchObject", "Sketch016")
body37.addObject(sketch17)
sketch17.AttachmentSupport = (doc.getObject("XY_Plane036"), [""])
sketch17.MapMode = "FlatFace"
sketch17.AttachmentOffset = App.Placement(App.Vector(0, 0, 45.913223), App.Rotation())
sketch17.addGeometry(Part.Circle(App.Vector(-85, 67.5, 0), App.Vector(0, 0, 1), 2), False)
sketch17.addConstraint([
    Sketcher.Constraint("Diameter", 0, 4.01),
    Sketcher.Constraint("DistanceX", 0, 3, -1, 1, 84.962639),
    Sketcher.Constraint("DistanceY", -1, 1, 0, 3, 67.504814),
])
pad17 = doc.addObject("PartDesign::Pad", "Pad016")
body37.addObject(pad17)
pad17.Profile = sketch17
pad17.Length = 20
body38 = doc.addObject("PartDesign::Body", "Body037")
doc.recompute()

body37.Placement = App.Placement(App.Vector(0, 0, -15), App.Rotation(App.Vector(0, 0, 1), 0))
boolean29 = doc.addObject("PartDesign::Boolean", "Boolean028")
body38.addObject(boolean29)
boolean29.Type = "Fuse"
boolean29.addObjects([body37])
body39 = doc.addObject("PartDesign::Body", "Body038")

# Sketch on XY plane
sketch18 = doc.addObject("Sketcher::SketchObject", "Sketch017")
body39.addObject(sketch18)
sketch18.AttachmentSupport = (doc.getObject("XY_Plane038"), [""])
sketch18.MapMode = "FlatFace"
sketch18.AttachmentOffset = App.Placement(App.Vector(0, 0, 45.913223), App.Rotation())
sketch18.addGeometry(Part.Circle(App.Vector(-85, 67.5, 0), App.Vector(0, 0, 1), 2), False)
sketch18.addConstraint([
    Sketcher.Constraint("Diameter", 0, 4.01),
    Sketcher.Constraint("DistanceX", 0, 3, -1, 1, 84.962639),
    Sketcher.Constraint("DistanceY", -1, 1, 0, 3, 67.504814),
])
pad18 = doc.addObject("PartDesign::Pad", "Pad017")
body39.addObject(pad18)
pad18.Profile = sketch18
pad18.Length = 20
body40 = doc.addObject("PartDesign::Body", "Body039")
doc.recompute()

body39.Placement = App.Placement(App.Vector(50.1, 0, -18), App.Rotation(App.Vector(0, 0, 1), 0))
boolean30 = doc.addObject("PartDesign::Boolean", "Boolean029")
body40.addObject(boolean30)
boolean30.Type = "Fuse"
boolean30.addObjects([body39])
body41 = doc.addObject("PartDesign::Body", "Body040")
body41.AllowCompound = True

# Sketch on XY plane
sketch19 = doc.addObject("Sketcher::SketchObject", "Sketch018")
body41.addObject(sketch19)
sketch19.AttachmentSupport = (doc.getObject("XY_Plane040"), [""])
sketch19.MapMode = "FlatFace"
sketch19.AttachmentOffset = App.Placement(App.Vector(0, 0, 41.913223), App.Rotation())
sketch19.addGeometry([
    Part.Circle(App.Vector(-85, 67.4, 0), App.Vector(0, 0, 1), 2.5),
    Part.Circle(App.Vector(-85, 22.5, 0), App.Vector(0, 0, 1), 2.5),
    Part.Circle(App.Vector(-35, 22.5, 0), App.Vector(0, 0, 1), 2.5),
    Part.Circle(App.Vector(-34.9, 67.6, 0), App.Vector(0, 0, 1), 2.5),
], False)
sketch19.addConstraint([
    Sketcher.Constraint("Equal", 0, 1),
    Sketcher.Constraint("Equal", 1, 2),
    Sketcher.Constraint("Equal", 2, 3),
    Sketcher.Constraint("Diameter", 0, 5.0),
    Sketcher.Constraint("DistanceY", -1, 1, 0, 3, 67.433998),
    Sketcher.Constraint("DistanceY", -1, 1, 3, 3, 67.59893),
    Sketcher.Constraint("DistanceY", 1, 3, 2, 3, 0.042839),
    Sketcher.Constraint("DistanceX", 0, 3, 2, 3, 49.962082),
    Sketcher.Constraint("DistanceX", 0, 3, 3, 3, 50.075809),
    Sketcher.Constraint("DistanceX", 0, 3, -1, 1, 84.986267),
    Sketcher.Constraint("DistanceX", 1, 3, -1, 1, 85.013062),
    Sketcher.Constraint("DistanceY", -1, 1, 1, 3, 22.499535),
])
pad19 = doc.addObject("PartDesign::Pad", "Pad018")
body41.addObject(pad19)
pad19.Profile = sketch19
pad19.Length = 8
body42 = doc.addObject("PartDesign::Body", "Body041")
body42.AllowCompound = True
doc.recompute()

body41.Placement = App.Placement(App.Vector(0, 0, -4), App.Rotation(App.Vector(0, 0, 1), 0))
boolean31 = doc.addObject("PartDesign::Boolean", "Boolean030")
body42.addObject(boolean31)
boolean31.Type = "Fuse"
boolean31.addObjects([body41])
body43 = doc.addObject("PartDesign::Body", "Body042")

# Sketch on XZ plane
sketch20 = doc.addObject("Sketcher::SketchObject", "Sketch019")
body43.addObject(sketch20)
sketch20.AttachmentSupport = (doc.getObject("XZ_Plane042"), [""])
sketch20.MapMode = "FlatFace"
sketch20.addGeometry([
    Part.LineSegment(App.Vector(-100, 37, 0), App.Vector(-100, 10, 0)),  # 0
    Part.LineSegment(App.Vector(-100, 10, 0), App.Vector(-90, 10, 0)),  # 1
    Part.LineSegment(App.Vector(-90, 10, 0), App.Vector(-90, 37, 0)),  # 2
    Part.LineSegment(App.Vector(-90, 37, 0), App.Vector(-60, 37, 0)),  # 3
    Part.LineSegment(App.Vector(-60, 37, 0), App.Vector(-60, 44, 0)),  # 4
    Part.LineSegment(App.Vector(-60, 44, 0), App.Vector(-130, 44, 0)),  # 5
    Part.LineSegment(App.Vector(-130, 44, 0), App.Vector(-130, 37, 0)),  # 6
    Part.LineSegment(App.Vector(-130, 37, 0), App.Vector(-100, 37, 0)),  # 7
], False)
sketch20.addConstraint([
    Sketcher.Constraint("Coincident", 0, 2, 1, 1),
    Sketcher.Constraint("Coincident", 1, 2, 2, 1),
    Sketcher.Constraint("Coincident", 2, 2, 3, 1),
    Sketcher.Constraint("Coincident", 3, 2, 4, 1),
    Sketcher.Constraint("Coincident", 4, 2, 5, 1),
    Sketcher.Constraint("Coincident", 5, 2, 6, 1),
    Sketcher.Constraint("Coincident", 6, 2, 7, 1),
    Sketcher.Constraint("Coincident", 7, 2, 0, 1),
    Sketcher.Constraint("Vertical", 0),
    Sketcher.Constraint("Horizontal", 1),
    Sketcher.Constraint("Vertical", 2),
    Sketcher.Constraint("Horizontal", 3),
    Sketcher.Constraint("Vertical", 4),
    Sketcher.Constraint("Horizontal", 5),
    Sketcher.Constraint("Vertical", 6),
    Sketcher.Constraint("Horizontal", 7),
    Sketcher.Constraint("Horizontal", 3, 2, 6, 2),
    Sketcher.Constraint("Equal", 3, 7),
    Sketcher.Constraint("DistanceX", 1, 1, 1, 2, 10.0),
    Sketcher.Constraint("DistanceX", 3, 1, 3, 2, 30.0),
    Sketcher.Constraint("DistanceX", 0, 2, -1, 1, 100.0),
    Sketcher.Constraint("DistanceY", 0, 2, 0, 1, 27.36),
    Sketcher.Constraint("DistanceY", 4, 1, 4, 2, 6.56),
    Sketcher.Constraint("DistanceY", -1, 1, 0, 2, 9.995709),
])
pad20 = doc.addObject("PartDesign::Pad", "Pad019")
body43.addObject(pad20)
pad20.Profile = sketch20
pad20.Length = 70
body44 = doc.addObject("PartDesign::Body", "Body043")
doc.recompute()

body43.Placement = App.Placement(App.Vector(-25, -49, -2), App.Rotation(App.Vector(0, 0, -1), 90))
boolean32 = doc.addObject("PartDesign::Boolean", "Boolean031")
body44.addObject(boolean32)
boolean32.Type = "Fuse"
boolean32.addObjects([body43])
body45 = doc.addObject("PartDesign::Body", "Body044")
body45.AllowCompound = True

# Sketch on XY plane
sketch21 = doc.addObject("Sketcher::SketchObject", "Sketch020")
body45.addObject(sketch21)
sketch21.AttachmentSupport = (doc.getObject("XY_Plane044"), [""])
sketch21.MapMode = "FlatFace"
sketch21.AttachmentOffset = App.Placement(App.Vector(0, 0, 2), App.Rotation())
sketch21.addGeometry([
    Part.Circle(App.Vector(120, 80, 0), App.Vector(0, 0, 1), 2.9),
    Part.Circle(App.Vector(120, 45, 0), App.Vector(0, 0, 1), 2.9),
    Part.Circle(App.Vector(120, 10, 0), App.Vector(0, 0, 1), 2.9),
], False)
sketch21.addConstraint([
    Sketcher.Constraint("Equal", 0, 1),
    Sketcher.Constraint("Equal", 1, 2),
    Sketcher.Constraint("Vertical", 0, 3, 1, 3),
    Sketcher.Constraint("Vertical", 1, 3, 2, 3),
    Sketcher.Constraint("Diameter", 0, 5.8),
    Sketcher.Constraint("DistanceX", -1, 1, 0, 3, 120.0),
    Sketcher.Constraint("DistanceY", -1, 1, 2, 3, 10.0),
    Sketcher.Constraint("DistanceY", -1, 1, 0, 3, 80.020506),
    Sketcher.Constraint("DistanceY", -1, 1, 1, 3, 45.010253),
])
pad21 = doc.addObject("PartDesign::Pad", "Pad020")
body45.addObject(pad21)
pad21.Profile = sketch21
pad21.Length = 50
body46 = doc.addObject("PartDesign::Body", "Body045")
body46.AllowCompound = True
doc.recompute()

body45.Placement = App.Placement(App.Vector(0, 0, -31), App.Rotation(App.Vector(0, 0, 1), 0))
boolean33 = doc.addObject("PartDesign::Boolean", "Boolean032")
body46.addObject(boolean33)
boolean33.Type = "Fuse"
boolean33.addObjects([body45])
body47 = doc.addObject("PartDesign::Body", "Body046")

# Sketch on XY plane
sketch22 = doc.addObject("Sketcher::SketchObject", "Sketch021")
body47.addObject(sketch22)
sketch22.AttachmentSupport = (doc.getObject("XY_Plane046"), [""])
sketch22.MapMode = "FlatFace"
sketch22.addGeometry([
    Part.LineSegment(App.Vector(0, 90, 0), App.Vector(0, 0, 0)),
    Part.LineSegment(App.Vector(0, 0, 0), App.Vector(130, 0, 0)),
    Part.LineSegment(App.Vector(130, 0, 0), App.Vector(130, 90, 0)),
    Part.LineSegment(App.Vector(130, 90, 0), App.Vector(0, 90, 0)),
], False)
sketch22.addConstraint([
    Sketcher.Constraint("Coincident", 0, 2, 1, 1),
    Sketcher.Constraint("Coincident", 1, 2, 2, 1),
    Sketcher.Constraint("Coincident", 2, 2, 3, 1),
    Sketcher.Constraint("Coincident", 3, 2, 0, 1),
    Sketcher.Constraint("Vertical", 0),
    Sketcher.Constraint("Horizontal", 1),
    Sketcher.Constraint("Vertical", 2),
    Sketcher.Constraint("Horizontal", 3),
    Sketcher.Constraint("Coincident", 0, 2, -1, 1),
    Sketcher.Constraint("DistanceX", 1, 1, 1, 2, 130.0),
    Sketcher.Constraint("DistanceY", 0, 2, 0, 1, 90.0),
])
pad22 = doc.addObject("PartDesign::Pad", "Pad021")
body47.addObject(pad22)
pad22.Profile = sketch22
pad22.Length = 2
doc.recompute()

boolean34 = doc.addObject("PartDesign::Boolean", "Boolean033")
body47.addObject(boolean34)
boolean34.Type = "Cut"
boolean34.addObjects([body46])
body48 = doc.addObject("PartDesign::Body", "Body047")
doc.recompute()

body47.Placement = App.Placement(App.Vector(-110, 0, 6), App.Rotation(App.Vector(0, 0, 1), 0))
boolean35 = doc.addObject("PartDesign::Boolean", "Boolean034")
body48.addObject(boolean35)
boolean35.Type = "Fuse"
boolean35.addObjects([body47])
doc.recompute()

boolean36 = doc.addObject("PartDesign::Boolean", "Boolean035")
body48.addObject(boolean36)
boolean36.Type = "Fuse"
boolean36.addObjects([body44])
doc.recompute()

boolean37 = doc.addObject("PartDesign::Boolean", "Boolean036")
body48.addObject(boolean37)
boolean37.Type = "Fuse"
boolean37.addObjects([body42])
doc.recompute()

boolean38 = doc.addObject("PartDesign::Boolean", "Boolean037")
body48.addObject(boolean38)
boolean38.Type = "Cut"
boolean38.addObjects([body40])
doc.recompute()

boolean39 = doc.addObject("PartDesign::Boolean", "Boolean038")
body48.addObject(boolean39)
boolean39.Type = "Cut"
boolean39.addObjects([body38])
doc.recompute()

boolean40 = doc.addObject("PartDesign::Boolean", "Boolean039")
body48.addObject(boolean40)
boolean40.Type = "Cut"
boolean40.addObjects([body36])
doc.recompute()

boolean41 = doc.addObject("PartDesign::Boolean", "Boolean040")
body48.addObject(boolean41)
boolean41.Type = "Cut"
boolean41.addObjects([body34])
doc.recompute()

boolean42 = doc.addObject("PartDesign::Boolean", "Boolean041")
body48.addObject(boolean42)
boolean42.Type = "Fuse"
boolean42.addObjects([body32])
doc.recompute()

boolean43 = doc.addObject("PartDesign::Boolean", "Boolean042")
body48.addObject(boolean43)
boolean43.Type = "Fuse"
boolean43.addObjects([body27])
doc.recompute()

boolean44 = doc.addObject("PartDesign::Boolean", "Boolean043")
body48.addObject(boolean44)
boolean44.Type = "Fuse"
boolean44.addObjects([body22])
doc.recompute()

boolean45 = doc.addObject("PartDesign::Boolean", "Boolean044")
body48.addObject(boolean45)
boolean45.Type = "Fuse"
boolean45.addObjects([body17])
doc.recompute()

boolean46 = doc.addObject("PartDesign::Boolean", "Boolean045")
body48.addObject(boolean46)
boolean46.Type = "Fuse"
boolean46.addObjects([body12])
doc.recompute()

boolean47 = doc.addObject("PartDesign::Boolean", "Boolean046")
body48.addObject(boolean47)
boolean47.Type = "Fuse"
boolean47.addObjects([body6])

doc.recompute()
